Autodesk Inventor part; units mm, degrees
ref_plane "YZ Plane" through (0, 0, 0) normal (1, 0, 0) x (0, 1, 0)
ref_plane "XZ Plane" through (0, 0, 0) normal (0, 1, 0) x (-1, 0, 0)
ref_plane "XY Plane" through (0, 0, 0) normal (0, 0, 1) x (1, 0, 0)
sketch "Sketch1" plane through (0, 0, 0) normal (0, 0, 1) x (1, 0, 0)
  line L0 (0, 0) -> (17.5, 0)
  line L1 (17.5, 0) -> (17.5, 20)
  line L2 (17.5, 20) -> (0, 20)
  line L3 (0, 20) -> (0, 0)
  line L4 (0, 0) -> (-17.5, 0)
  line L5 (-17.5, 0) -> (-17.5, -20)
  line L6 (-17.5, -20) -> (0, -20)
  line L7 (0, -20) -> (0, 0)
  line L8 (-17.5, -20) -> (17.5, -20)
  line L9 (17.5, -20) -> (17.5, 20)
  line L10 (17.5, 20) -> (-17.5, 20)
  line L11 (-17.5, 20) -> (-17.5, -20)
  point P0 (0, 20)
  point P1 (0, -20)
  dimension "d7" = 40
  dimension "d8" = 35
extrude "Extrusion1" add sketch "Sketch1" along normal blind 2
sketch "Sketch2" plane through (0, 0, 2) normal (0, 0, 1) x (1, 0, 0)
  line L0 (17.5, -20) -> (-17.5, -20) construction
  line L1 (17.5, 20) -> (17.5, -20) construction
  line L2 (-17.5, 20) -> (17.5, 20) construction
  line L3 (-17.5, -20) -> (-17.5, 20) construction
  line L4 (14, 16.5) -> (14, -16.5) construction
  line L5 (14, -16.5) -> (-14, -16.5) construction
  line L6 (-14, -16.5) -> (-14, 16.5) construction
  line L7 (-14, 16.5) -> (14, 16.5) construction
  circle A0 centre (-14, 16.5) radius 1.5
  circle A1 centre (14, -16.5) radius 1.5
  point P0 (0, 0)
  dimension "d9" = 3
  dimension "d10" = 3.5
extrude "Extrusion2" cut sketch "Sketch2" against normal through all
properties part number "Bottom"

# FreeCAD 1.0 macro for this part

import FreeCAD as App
import Part
import Sketcher

V = App.Vector


def add_polygon(sketch, points):
    """Adds a closed chain of lines whose ends are joined by coincident constraints."""
    first, n = sketch.GeometryCount, len(points)
    for a, b in zip(points, points[1:] + points[:1]):
        sketch.addGeometry(Part.LineSegment(App.Vector(*a, 0), App.Vector(*b, 0)), False)
    for i in range(n):
        sketch.addConstraint(Sketcher.Constraint("Coincident", first + i, 2, first + (i + 1) % n, 1))

doc = App.newDocument("Part")
body = doc.addObject("PartDesign::Body", "Body")

sketch1 = doc.addObject("Sketcher::SketchObject", "Sketch")
body.addObject(sketch1)
sketch1.AttachmentSupport = (doc.XY_Plane, [""])
sketch1.MapMode = "FlatFace"
add_polygon(sketch1, [(17.5, 20), (-17.5, 20), (-17.5, -20), (17.5, -20)])
sketch1.addConstraint(Sketcher.Constraint("Horizontal", 0))
sketch1.addConstraint(Sketcher.Constraint("Vertical", 1))
sketch1.addConstraint(Sketcher.Constraint("Horizontal", 2))
sketch1.addConstraint(Sketcher.Constraint("Vertical", 3))
sketch1.addConstraint(Sketcher.Constraint("Symmetric", 0, 2, 2, 2, -1, 1))
sketch1.addConstraint(Sketcher.Constraint("DistanceX", 0, 2, 0, 1, 35.0))
sketch1.addConstraint(Sketcher.Constraint("DistanceY", 1, 2, 1, 1, 40.0))
pad1 = doc.addObject("PartDesign::Pad", "Pad")
body.addObject(pad1)
pad1.Profile = sketch1
pad1.Length = 2

sketch2 = doc.addObject("Sketcher::SketchObject", "Sketch001")
body.addObject(sketch2)
sketch2.AttachmentSupport = (doc.XY_Plane, [""])
sketch2.MapMode = "FlatFace"
sketch2.AttachmentOffset = App.Placement(V(0, 0, 2), App.Rotation())
sketch2.addGeometry(Part.Circle(V(-14, 16.5, 0), V(0, 0, 1), 1.5), False)
sketch2.addGeometry(Part.Circle(V(14, -16.5, 0), V(0, 0, 1), 1.5), False)
sketch2.addConstraint(Sketcher.Constraint("Equal", 0, 1))
sketch2.addConstraint(Sketcher.Constraint("Symmetric", 0, 3, 1, 3, -1, 1))
sketch2.addConstraint(Sketcher.Constraint("Diameter", 0, 3.0))
sketch2.addConstraint(Sketcher.Constraint("DistanceX", 0, 3, -1, 1, 14.0))
sketch2.addConstraint(Sketcher.Constraint("DistanceY", 1, 3, 0, 3, 33.0))
pocket1 = doc.addObject("PartDesign::Pocket", "Pocket")
body.addObject(pocket1)
pocket1.Profile = sketch2
pocket1.Type = "ThroughAll"

doc.recompute()
